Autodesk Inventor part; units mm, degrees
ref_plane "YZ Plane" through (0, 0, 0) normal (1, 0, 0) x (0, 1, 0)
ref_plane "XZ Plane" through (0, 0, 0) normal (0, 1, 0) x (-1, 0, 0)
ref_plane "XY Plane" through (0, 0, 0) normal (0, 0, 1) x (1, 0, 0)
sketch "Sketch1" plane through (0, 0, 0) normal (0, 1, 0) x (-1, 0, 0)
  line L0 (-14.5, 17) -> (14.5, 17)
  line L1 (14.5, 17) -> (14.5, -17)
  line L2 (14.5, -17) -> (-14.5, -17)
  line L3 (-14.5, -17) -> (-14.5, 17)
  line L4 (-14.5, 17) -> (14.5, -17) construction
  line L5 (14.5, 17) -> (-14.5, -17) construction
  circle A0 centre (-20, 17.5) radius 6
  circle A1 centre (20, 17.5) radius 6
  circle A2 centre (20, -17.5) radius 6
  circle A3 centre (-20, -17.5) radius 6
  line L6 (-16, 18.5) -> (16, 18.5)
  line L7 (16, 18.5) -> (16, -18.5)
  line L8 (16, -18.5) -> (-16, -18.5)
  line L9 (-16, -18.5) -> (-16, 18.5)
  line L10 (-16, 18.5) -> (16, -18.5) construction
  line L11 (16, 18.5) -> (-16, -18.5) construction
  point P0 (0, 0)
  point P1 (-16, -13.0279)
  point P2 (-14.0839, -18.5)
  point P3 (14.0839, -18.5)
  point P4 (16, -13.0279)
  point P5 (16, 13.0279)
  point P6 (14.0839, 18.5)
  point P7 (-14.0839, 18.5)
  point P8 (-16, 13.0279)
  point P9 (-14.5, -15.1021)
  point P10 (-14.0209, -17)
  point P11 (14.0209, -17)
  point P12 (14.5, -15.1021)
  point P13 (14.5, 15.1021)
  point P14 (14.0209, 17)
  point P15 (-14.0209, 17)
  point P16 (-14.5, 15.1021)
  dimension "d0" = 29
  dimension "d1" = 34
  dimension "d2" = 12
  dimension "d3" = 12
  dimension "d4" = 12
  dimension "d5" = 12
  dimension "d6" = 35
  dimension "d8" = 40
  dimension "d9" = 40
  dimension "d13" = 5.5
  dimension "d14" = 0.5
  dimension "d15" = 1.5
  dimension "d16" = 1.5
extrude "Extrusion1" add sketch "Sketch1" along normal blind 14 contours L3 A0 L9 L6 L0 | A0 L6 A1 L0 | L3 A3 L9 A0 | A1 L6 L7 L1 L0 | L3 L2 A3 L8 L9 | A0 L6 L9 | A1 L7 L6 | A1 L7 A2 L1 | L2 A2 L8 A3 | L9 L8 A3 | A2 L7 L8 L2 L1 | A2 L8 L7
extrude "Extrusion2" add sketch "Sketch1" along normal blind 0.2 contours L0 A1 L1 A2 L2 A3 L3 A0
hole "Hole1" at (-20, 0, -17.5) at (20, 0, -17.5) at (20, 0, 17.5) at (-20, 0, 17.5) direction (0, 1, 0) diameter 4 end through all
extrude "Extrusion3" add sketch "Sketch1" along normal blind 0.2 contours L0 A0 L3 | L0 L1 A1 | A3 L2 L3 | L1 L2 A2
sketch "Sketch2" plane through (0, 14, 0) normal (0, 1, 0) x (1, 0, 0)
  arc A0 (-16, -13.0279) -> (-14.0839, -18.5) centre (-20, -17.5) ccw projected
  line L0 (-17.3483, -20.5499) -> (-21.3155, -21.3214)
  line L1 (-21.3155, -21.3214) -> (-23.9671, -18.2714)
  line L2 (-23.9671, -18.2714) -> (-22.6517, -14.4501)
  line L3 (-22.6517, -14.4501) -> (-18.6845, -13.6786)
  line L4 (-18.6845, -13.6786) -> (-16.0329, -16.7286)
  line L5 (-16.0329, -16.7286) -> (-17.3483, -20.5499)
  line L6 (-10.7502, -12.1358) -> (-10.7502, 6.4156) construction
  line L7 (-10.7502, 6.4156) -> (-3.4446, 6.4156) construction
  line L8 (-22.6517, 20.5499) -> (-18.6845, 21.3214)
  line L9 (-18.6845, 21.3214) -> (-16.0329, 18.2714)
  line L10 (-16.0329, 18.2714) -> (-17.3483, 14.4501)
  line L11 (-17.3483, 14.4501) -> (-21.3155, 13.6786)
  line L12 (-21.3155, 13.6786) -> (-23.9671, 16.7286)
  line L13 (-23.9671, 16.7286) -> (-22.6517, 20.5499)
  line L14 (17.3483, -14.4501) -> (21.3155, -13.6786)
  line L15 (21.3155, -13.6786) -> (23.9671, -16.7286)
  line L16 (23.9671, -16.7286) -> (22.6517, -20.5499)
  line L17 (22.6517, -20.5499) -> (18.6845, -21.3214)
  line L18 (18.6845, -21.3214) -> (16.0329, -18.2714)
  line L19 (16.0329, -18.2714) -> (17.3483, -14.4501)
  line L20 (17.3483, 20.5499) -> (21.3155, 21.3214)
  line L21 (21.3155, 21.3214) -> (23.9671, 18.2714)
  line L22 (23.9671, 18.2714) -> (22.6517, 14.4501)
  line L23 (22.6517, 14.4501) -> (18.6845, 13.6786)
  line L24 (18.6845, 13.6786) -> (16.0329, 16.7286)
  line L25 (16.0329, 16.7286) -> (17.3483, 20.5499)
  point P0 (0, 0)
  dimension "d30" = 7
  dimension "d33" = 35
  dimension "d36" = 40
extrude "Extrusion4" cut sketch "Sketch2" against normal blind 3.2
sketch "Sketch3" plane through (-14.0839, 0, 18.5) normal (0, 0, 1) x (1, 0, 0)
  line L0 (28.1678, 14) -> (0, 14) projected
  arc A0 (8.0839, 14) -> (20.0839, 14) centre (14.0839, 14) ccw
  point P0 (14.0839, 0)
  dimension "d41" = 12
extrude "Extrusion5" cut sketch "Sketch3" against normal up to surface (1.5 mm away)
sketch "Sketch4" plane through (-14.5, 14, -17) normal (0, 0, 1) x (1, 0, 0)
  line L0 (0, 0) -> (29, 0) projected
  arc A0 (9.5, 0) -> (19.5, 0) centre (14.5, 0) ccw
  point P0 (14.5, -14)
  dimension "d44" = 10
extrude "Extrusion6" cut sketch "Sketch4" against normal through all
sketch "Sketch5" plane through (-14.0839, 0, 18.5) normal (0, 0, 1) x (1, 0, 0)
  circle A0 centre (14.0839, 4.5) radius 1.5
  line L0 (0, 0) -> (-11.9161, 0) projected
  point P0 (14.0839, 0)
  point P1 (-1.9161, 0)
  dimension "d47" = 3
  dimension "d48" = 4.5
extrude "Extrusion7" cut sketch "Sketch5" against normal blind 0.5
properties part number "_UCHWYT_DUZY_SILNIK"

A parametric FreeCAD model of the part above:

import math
import FreeCAD as App
import Part
import Sketcher
Q = App.Units.Quantity


def add_polygon(sketch, points):
    """Adds a closed chain of lines whose ends are joined by coincident constraints."""
    first, n = sketch.GeometryCount, len(points)
    for a, b in zip(points, points[1:] + points[:1]):
        sketch.addGeometry(Part.LineSegment(App.Vector(*a, 0), App.Vector(*b, 0)), False)
    for i in range(n):
        sketch.addConstraint(Sketcher.Constraint("Coincident", first + i, 2, first + (i + 1) % n, 1))

doc = App.newDocument("Part")
body = doc.addObject("PartDesign::Body", "Body")

# Sketch on XZ plane
sketch1 = doc.addObject("Sketcher::SketchObject", "Sketch")
body.addObject(sketch1)
sketch1.AttachmentSupport = (doc.XZ_Plane, [""])
sketch1.MapMode = "FlatFace"
sketch1.addGeometry(Part.LineSegment(App.Vector(16, 13, 0), App.Vector(16, -13, 0)), False)  # 0
sketch1.addGeometry(Part.ArcOfCircle(Part.Circle(App.Vector(20, -18, 0), App.Vector(0, 0, 1), 6), math.radians(-170), math.radians(132)), False)  # 1
sketch1.addGeometry(Part.LineSegment(App.Vector(14, -18, 0), App.Vector(-14, -18, 0)), False)  # 2
sketch1.addGeometry(Part.ArcOfCircle(Part.Circle(App.Vector(-20, -18, 0), App.Vector(0, 0, 1), 6), math.radians(48), math.radians(350)), False)  # 3
sketch1.addGeometry(Part.LineSegment(App.Vector(-16, -13, 0), App.Vector(-16, 13, 0)), False)  # 4
sketch1.addGeometry(Part.ArcOfCircle(Part.Circle(App.Vector(-20, 18, 0), App.Vector(0, 0, 1), 6), math.radians(10), math.radians(312)), False)  # 5
sketch1.addGeometry(Part.LineSegment(App.Vector(-14, 18, 0), App.Vector(14, 18, 0)), False)  # 6
sketch1.addGeometry(Part.ArcOfCircle(Part.Circle(App.Vector(20, 18, 0), App.Vector(0, 0, 1), 6), math.radians(-132), math.radians(170)), False)  # 7
add_polygon(sketch1, [(14, 17), (-14, 17), (-14, -17), (14, -17)])  # lines 8-11
sketch1.addConstraint([
    Sketcher.Constraint("Coincident", 0, 2, 1, 2),
    Sketcher.Constraint("Coincident", 1, 1, 2, 1),
    Sketcher.Constraint("Coincident", 2, 2, 3, 2),
    Sketcher.Constraint("Coincident", 3, 1, 4, 1),
    Sketcher.Constraint("Coincident", 4, 2, 5, 2),
    Sketcher.Constraint("Coincident", 5, 1, 6, 1),
    Sketcher.Constraint("Coincident", 6, 2, 7, 2),
    Sketcher.Constraint("Coincident", 7, 1, 0, 1),
    Sketcher.Constraint("Vertical", 0),
    Sketcher.Constraint("Horizontal", 2),
    Sketcher.Constraint("Vertical", 4),
    Sketcher.Constraint("Horizontal", 6),
    Sketcher.Constraint("Horizontal", 8),
    Sketcher.Constraint("Vertical", 9),
    Sketcher.Constraint("Horizontal", 10),
    Sketcher.Constraint("Vertical", 11),
    Sketcher.Constraint("Equal", 1, 3),
    Sketcher.Constraint("Equal", 3, 5),
    Sketcher.Constraint("Equal", 5, 7),
    Sketcher.Constraint("Symmetric", 1, 3, 5, 3, -1, 1),
    Sketcher.Constraint("Symmetric", 3, 3, 7, 3, -1, 1),
    Sketcher.Constraint("Symmetric", 8, 2, 10, 2, -1, 1),
    Sketcher.Constraint("Symmetric", 1, 3, 3, 3, -2),
    Sketcher.Constraint("Horizontal", 0, 2, 3, 1),
    Sketcher.Constraint("Vertical", 2, 2, 5, 1),
    Sketcher.Constraint("Radius", 1, Q("6 mm")),
    Sketcher.Constraint("DistanceX", 8, 2, 8, 1, Q("29 mm")),
    Sketcher.Constraint("DistanceY", 9, 2, 9, 1, Q("34 mm")),
    Sketcher.Constraint("DistanceX", 3, 3, 1, 3, Q("40 mm")),
    Sketcher.Constraint("DistanceY", 3, 3, 5, 3, Q("35 mm")),
    Sketcher.Constraint("DistanceY", 8, 2, 5, 1, Q("1.5 mm")),
    Sketcher.Constraint("DistanceX", 4, 2, 8, 2, Q("1.5 mm")),
])
pad1 = doc.addObject("PartDesign::Pad", "Pad")
body.addObject(pad1)
pad1.Profile = sketch1
pad1.Length = 14
pad1.Reversed = True

# Sketch on XZ plane
sketch2 = doc.addObject("Sketcher::SketchObject", "Sketch001")
body.addObject(sketch2)
sketch2.AttachmentSupport = (doc.XZ_Plane, [""])
sketch2.MapMode = "FlatFace"
sketch2.addGeometry([
    Part.LineSegment(App.Vector(-14, 17, 0), App.Vector(14, 17, 0)),  # 0
    Part.ArcOfCircle(Part.Circle(App.Vector(20, 17.5, 0), App.Vector(0, 0, 1), 6), math.radians(-175.22), math.radians(-156.44)),  # 1
    Part.LineSegment(App.Vector(14.5, 15.1, 0), App.Vector(14.5, -15.1, 0)),  # 2
    Part.ArcOfCircle(Part.Circle(App.Vector(20, -17.5, 0), App.Vector(0, 0, 1), 6), math.radians(156.44), math.radians(175.22)),  # 3
    Part.LineSegment(App.Vector(14, -17, 0), App.Vector(-14, -17, 0)),  # 4
    Part.ArcOfCircle(Part.Circle(App.Vector(-20, -17.5, 0), App.Vector(0, 0, 1), 6), math.radians(4.78), math.radians(23.56)),  # 5
    Part.LineSegment(App.Vector(-14.5, -15.1, 0), App.Vector(-14.5, 15.1, 0)),  # 6
    Part.ArcOfCircle(Part.Circle(App.Vector(-20, 17.5, 0), App.Vector(0, 0, 1), 6), math.radians(-23.56), math.radians(-4.78)),  # 7
], False)
sketch2.addConstraint([
    Sketcher.Constraint("Coincident", 0, 2, 1, 1),
    Sketcher.Constraint("Coincident", 1, 2, 2, 1),
    Sketcher.Constraint("Coincident", 2, 2, 3, 1),
    Sketcher.Constraint("Coincident", 3, 2, 4, 1),
    Sketcher.Constraint("Coincident", 4, 2, 5, 1),
    Sketcher.Constraint("Coincident", 5, 2, 6, 1),
    Sketcher.Constraint("Coincident", 6, 2, 7, 1),
    Sketcher.Constraint("Coincident", 7, 2, 0, 1),
    Sketcher.Constraint("Horizontal", 0),
    Sketcher.Constraint("Vertical", 2),
    Sketcher.Constraint("Horizontal", 4),
    Sketcher.Constraint("Vertical", 6),
    Sketcher.Constraint("Equal", 1, 3),
    Sketcher.Constraint("Equal", 3, 5),
    Sketcher.Constraint("Equal", 5, 7),
    Sketcher.Constraint("Symmetric", 1, 3, 5, 3, -1, 1),
    Sketcher.Constraint("Symmetric", 3, 3, 7, 3, -1, 1),
    Sketcher.Constraint("Symmetric", 3, 3, 5, 3, -2),
    Sketcher.Constraint("Horizontal", 2, 2, 5, 2),
    Sketcher.Constraint("Vertical", 0, 2, 3, 2),
    Sketcher.Constraint("Radius", 1, Q("6 mm")),
    Sketcher.Constraint("DistanceY", 3, 3, 1, 3, Q("35 mm")),
    Sketcher.Constraint("DistanceX", 5, 3, 3, 3, Q("40 mm")),
    Sketcher.Constraint("DistanceY", 3, 2, 0, 2, Q("34 mm")),
    Sketcher.Constraint("DistanceX", 5, 2, 2, 2, Q("29 mm")),
])
pad2 = doc.addObject("PartDesign::Pad", "Pad001")
body.addObject(pad2)
pad2.Profile = sketch2
pad2.Length = 0.2
pad2.Reversed = True

# Sketch on XZ plane
sketch3 = doc.addObject("Sketcher::SketchObject", "Sketch002")
body.addObject(sketch3)
sketch3.AttachmentSupport = (doc.XZ_Plane, [""])
sketch3.MapMode = "FlatFace"
sketch3.addGeometry([
    Part.Circle(App.Vector(-20, -17.5, 0), App.Vector(0, 0, 1), 2),
    Part.Circle(App.Vector(20, -17.5, 0), App.Vector(0, 0, 1), 2),
    Part.Circle(App.Vector(20, 17.5, 0), App.Vector(0, 0, 1), 2),
    Part.Circle(App.Vector(-20, 17.5, 0), App.Vector(0, 0, 1), 2),
], False)
sketch3.addConstraint([
    Sketcher.Constraint("Equal", 0, 1),
    Sketcher.Constraint("Equal", 1, 2),
    Sketcher.Constraint("Equal", 2, 3),
    Sketcher.Constraint("Symmetric", 0, 3, 2, 3, -1, 1),
    Sketcher.Constraint("Symmetric", 1, 3, 3, 3, -1, 1),
    Sketcher.Constraint("Symmetric", 0, 3, 1, 3, -2),
    Sketcher.Constraint("Diameter", 0, Q("4 mm")),
    Sketcher.Constraint("DistanceX", 0, 3, -1, 1, Q("20 mm")),
    Sketcher.Constraint("DistanceY", 1, 3, 2, 3, Q("35 mm")),
])
doc.recompute()
hole = doc.addObject("PartDesign::Hole", "Hole")
body.addObject(hole)
hole.Profile = sketch3
hole.ThreadType = "None"
hole.Diameter = 4
hole.DepthType = "ThroughAll"

# Sketch on XZ plane
sketch4 = doc.addObject("Sketcher::SketchObject", "Sketch003")
body.addObject(sketch4)
sketch4.AttachmentSupport = (doc.XZ_Plane, [""])
sketch4.MapMode = "FlatFace"
sketch4.addGeometry([
    Part.LineSegment(App.Vector(14.02, 17, 0), App.Vector(14.5, 17, 0)),  # 0
    Part.LineSegment(App.Vector(14.5, 17, 0), App.Vector(14.5, 15.1, 0)),  # 1
    Part.ArcOfCircle(Part.Circle(App.Vector(20, 17.5, 0), App.Vector(0, 0, 1), 6), math.radians(-175.22), math.radians(-156.44)),  # 2
    Part.LineSegment(App.Vector(-14.5, 17, 0), App.Vector(-14.02, 17, 0)),  # 3
    Part.ArcOfCircle(Part.Circle(App.Vector(-20, 17.5, 0), App.Vector(0, 0, 1), 6), math.radians(-23.56), math.radians(-4.78)),  # 4
    Part.LineSegment(App.Vector(-14.5, 15.1, 0), App.Vector(-14.5, 17, 0)),  # 5
    Part.ArcOfCircle(Part.Circle(App.Vector(20, -17.5, 0), App.Vector(0, 0, 1), 6), math.radians(156.44), math.radians(175.22)),  # 6
    Part.LineSegment(App.Vector(14.5, -15.1, 0), App.Vector(14.5, -17, 0)),  # 7
    Part.LineSegment(App.Vector(14.5, -17, 0), App.Vector(14.02, -17, 0)),  # 8
    Part.LineSegment(App.Vector(-14.5, -17, 0), App.Vector(-14.5, -15.1, 0)),  # 9
    Part.ArcOfCircle(Part.Circle(App.Vector(-20, -17.5, 0), App.Vector(0, 0, 1), 6), math.radians(4.78), math.radians(23.56)),  # 10
    Part.LineSegment(App.Vector(-14.02, -17, 0), App.Vector(-14.5, -17, 0)),  # 11
], False)
sketch4.addConstraint([
    Sketcher.Constraint("Coincident", 0, 2, 1, 1),
    Sketcher.Constraint("Coincident", 1, 2, 2, 2),
    Sketcher.Constraint("Coincident", 2, 1, 0, 1),
    Sketcher.Constraint("Coincident", 3, 2, 4, 2),
    Sketcher.Constraint("Coincident", 4, 1, 5, 1),
    Sketcher.Constraint("Coincident", 5, 2, 3, 1),
    Sketcher.Constraint("Coincident", 6, 1, 7, 1),
    Sketcher.Constraint("Coincident", 7, 2, 8, 1),
    Sketcher.Constraint("Coincident", 8, 2, 6, 2),
    Sketcher.Constraint("Coincident", 9, 2, 10, 2),
    Sketcher.Constraint("Coincident", 10, 1, 11, 1),
    Sketcher.Constraint("Coincident", 11, 2, 9, 1),
    Sketcher.Constraint("Horizontal", 0),
    Sketcher.Constraint("Vertical", 1),
    Sketcher.Constraint("Horizontal", 3),
    Sketcher.Constraint("Vertical", 5),
    Sketcher.Constraint("Vertical", 7),
    Sketcher.Constraint("Horizontal", 8),
    Sketcher.Constraint("Vertical", 9),
    Sketcher.Constraint("Horizontal", 11),
    Sketcher.Constraint("Equal", 2, 4),
    Sketcher.Constraint("Equal", 4, 6),
    Sketcher.Constraint("Equal", 6, 10),
    Sketcher.Constraint("Symmetric", 4, 3, 6, 3, -1, 1),
    Sketcher.Constraint("Symmetric", 2, 3, 10, 3, -1, 1),
    Sketcher.Constraint("Symmetric", 5, 2, 7, 2, -1, 1),
    Sketcher.Constraint("Symmetric", 0, 2, 11, 2, -1, 1),
    Sketcher.Constraint("Symmetric", 2, 3, 4, 3, -2),
    Sketcher.Constraint("Symmetric", 0, 2, 5, 2, -2),
    Sketcher.Constraint("Radius", 2, Q("6 mm")),
    Sketcher.Constraint("DistanceX", 4, 3, 2, 3, Q("40 mm")),
    Sketcher.Constraint("DistanceY", 6, 3, 2, 3, Q("35 mm")),
    Sketcher.Constraint("DistanceX", 4, 1, 1, 2, Q("29 mm")),
    Sketcher.Constraint("DistanceY", 7, 2, 0, 2, Q("34 mm")),
])
pad3 = doc.addObject("PartDesign::Pad", "Pad002")
body.addObject(pad3)
pad3.Profile = sketch4
pad3.Length = 0.2
pad3.Reversed = True

# Sketch on XZ plane
sketch5 = doc.addObject("Sketcher::SketchObject", "Sketch004")
body.addObject(sketch5)
sketch5.AttachmentSupport = (doc.XZ_Plane, [""])
sketch5.MapMode = "FlatFace"
sketch5.AttachmentOffset = App.Placement(App.Vector(0, 0, -14), App.Rotation())
add_polygon(sketch5, [(-21.3, 21.3), (-17.3, 20.5), (-16, 16.7), (-18.7, 13.7), (-22.7, 14.5), (-24, 18.3)])  # lines 0-5
add_polygon(sketch5, [(-18.7, -21.3), (-22.7, -20.5), (-24, -16.7), (-21.3, -13.7), (-17.3, -14.5), (-16, -18.3)])  # lines 6-11
add_polygon(sketch5, [(21.3, 13.7), (17.3, 14.5), (16, 18.3), (18.7, 21.3), (22.7, 20.5), (24, 16.7)])  # lines 12-17
add_polygon(sketch5, [(21.3, -21.3), (17.3, -20.5), (16, -16.7), (18.7, -13.7), (22.7, -14.5), (24, -18.3)])  # lines 18-23
sketch5.addConstraint([
    Sketcher.Constraint("Symmetric", 9, 2, 12, 2, -1, 1),
    Sketcher.Constraint("Symmetric", 10, 2, 13, 2, -1, 1),
    Sketcher.Constraint("Symmetric", 11, 2, 14, 2, -1, 1),
    Sketcher.Constraint("Symmetric", 6, 2, 15, 2, -1, 1),
    Sketcher.Constraint("Symmetric", 7, 2, 16, 2, -1, 1),
    Sketcher.Constraint("Symmetric", 8, 2, 17, 2, -1, 1),
    Sketcher.Constraint("Symmetric", 0, 2, 18, 2, -1, 1),
    Sketcher.Constraint("Symmetric", 1, 2, 19, 2, -1, 1),
    Sketcher.Constraint("Symmetric", 2, 2, 20, 2, -1, 1),
    Sketcher.Constraint("Symmetric", 3, 2, 21, 2, -1, 1),
    Sketcher.Constraint("Symmetric", 4, 2, 22, 2, -1, 1),
    Sketcher.Constraint("Symmetric", 5, 2, 23, 2, -1, 1),
    Sketcher.Constraint("Parallel", 0, 3),
    Sketcher.Constraint("Parallel", 1, 4),
    Sketcher.Constraint("Parallel", 2, 5),
    Sketcher.Constraint("Parallel", 3, 6),
    Sketcher.Constraint("Parallel", 4, 7),
    Sketcher.Constraint("Parallel", 5, 8),
    Sketcher.Constraint("Parallel", 6, 9),
    Sketcher.Constraint("Parallel", 7, 10),
    Sketcher.Constraint("Parallel", 8, 11),
    Sketcher.Constraint("Horizontal", 3, 2, 12, 2),
    Sketcher.Constraint("Horizontal", 4, 2, 13, 2),
    Sketcher.Constraint("Horizontal", 5, 2, 14, 2),
    Sketcher.Constraint("Horizontal", 0, 2, 15, 2),
    Sketcher.Constraint("Horizontal", 1, 2, 16, 2),
    Sketcher.Constraint("Vertical", 3, 2, 6, 2),
    Sketcher.Constraint("Vertical", 4, 2, 7, 2),
    Sketcher.Constraint("Equal", 0, 1),
    Sketcher.Constraint("Equal", 1, 2),
    Sketcher.Constraint("DistanceY", 6, 2, 3, 2, Q("35 mm")),
    Sketcher.Constraint("DistanceX", 3, 2, 12, 2, Q("40 mm")),
    Sketcher.Constraint("DistanceY", -1, 1, 0, 2, Q("20.55 mm")),
    Sketcher.Constraint("DistanceY", 2, 2, 1, 2, Q("3.05 mm")),
    Sketcher.Constraint("DistanceX", 1, 2, -1, 1, Q("16.033 mm")),
    Sketcher.Constraint("DistanceX", 5, 2, 2, 2, Q("2.631 mm")),
])
pocket1 = doc.addObject("PartDesign::Pocket", "Pocket")
body.addObject(pocket1)
pocket1.Profile = sketch5
pocket1.Length = 3.2
pocket1.Reversed = True

# Sketch on XY plane
sketch6 = doc.addObject("Sketcher::SketchObject", "Sketch005")
body.addObject(sketch6)
sketch6.AttachmentSupport = (doc.XY_Plane, [""])
sketch6.MapMode = "FlatFace"
sketch6.AttachmentOffset = App.Placement(App.Vector(0, 0, 18.5), App.Rotation())
sketch6.addGeometry([
    Part.ArcOfCircle(Part.Circle(App.Vector(0, 14, 0), App.Vector(0, 0, 1), 6), math.radians(180), math.radians(360)),
    Part.LineSegment(App.Vector(6, 14, 0), App.Vector(-6, 14, 0)),
], False)
sketch6.addConstraint([
    Sketcher.Constraint("Coincident", 0, 1, 1, 2),
    Sketcher.Constraint("Coincident", 1, 1, 0, 2),
    Sketcher.Constraint("Horizontal", 1),
    Sketcher.Constraint("PointOnObject", 0, 3, -2),
    Sketcher.Constraint("Radius", 0, Q("6 mm")),
    Sketcher.Constraint("DistanceY", -1, 1, 0, 3, Q("14 mm")),
    Sketcher.Constraint("DistanceY", -1, 1, 0, 1, Q("14 mm")),
])
pocket2 = doc.addObject("PartDesign::Pocket", "Pocket001")
body.addObject(pocket2)
pocket2.Profile = sketch6
pocket2.Length = 1.5

# Sketch on XY plane
sketch7 = doc.addObject("Sketcher::SketchObject", "Sketch006")
body.addObject(sketch7)
sketch7.AttachmentSupport = (doc.XY_Plane, [""])
sketch7.MapMode = "FlatFace"
sketch7.AttachmentOffset = App.Placement(App.Vector(0, 0, -17), App.Rotation())
sketch7.addGeometry([
    Part.LineSegment(App.Vector(5, 14, 0), App.Vector(-5, 14, 0)),
    Part.ArcOfCircle(Part.Circle(App.Vector(0, 14, 0), App.Vector(0, 0, 1), 5), math.radians(180), math.radians(360)),
], False)
sketch7.addConstraint([
    Sketcher.Constraint("Coincident", 0, 1, 1, 2),
    Sketcher.Constraint("Coincident", 1, 1, 0, 2),
    Sketcher.Constraint("Horizontal", 0),
    Sketcher.Constraint("PointOnObject", 1, 3, -2),
    Sketcher.Constraint("Horizontal", 1, 3, 0, 1),
    Sketcher.Constraint("Radius", 1, Q("5 mm")),
    Sketcher.Constraint("DistanceY", -1, 1, 1, 3, Q("14 mm")),
])
pocket3 = doc.addObject("PartDesign::Pocket", "Pocket002")
body.addObject(pocket3)
pocket3.Profile = sketch7
pocket3.Type = "ThroughAll"

# Sketch on XY plane
sketch8 = doc.addObject("Sketcher::SketchObject", "Sketch007")
body.addObject(sketch8)
sketch8.AttachmentSupport = (doc.XY_Plane, [""])
sketch8.MapMode = "FlatFace"
sketch8.AttachmentOffset = App.Placement(App.Vector(0, 0, 18.5), App.Rotation())
sketch8.addGeometry(Part.Circle(App.Vector(0, 4.5, 0), App.Vector(0, 0, 1), 1.5), False)
sketch8.addConstraint([
    Sketcher.Constraint("PointOnObject", 0, 3, -2),
    Sketcher.Constraint("Diameter", 0, Q("3 mm")),
    Sketcher.Constraint("DistanceY", -1, 1, 0, 3, Q("4.5 mm")),
])
pocket4 = doc.addObject("PartDesign::Pocket", "Pocket003")
body.addObject(pocket4)
pocket4.Profile = sketch8
pocket4.Length = 0.5

doc.recompute()
